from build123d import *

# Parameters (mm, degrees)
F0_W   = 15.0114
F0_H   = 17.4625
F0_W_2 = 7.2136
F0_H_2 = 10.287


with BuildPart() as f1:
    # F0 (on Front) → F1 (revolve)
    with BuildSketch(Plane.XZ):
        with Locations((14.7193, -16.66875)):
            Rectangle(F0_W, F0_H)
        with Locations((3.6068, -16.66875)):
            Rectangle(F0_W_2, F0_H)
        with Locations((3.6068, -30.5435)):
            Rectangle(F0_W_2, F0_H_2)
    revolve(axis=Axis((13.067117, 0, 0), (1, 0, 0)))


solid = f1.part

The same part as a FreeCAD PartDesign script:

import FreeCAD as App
import Part
import Sketcher
Q = App.Units.Quantity


def add_polygon(sketch, points):
    """Adds a closed chain of lines whose ends are joined by coincident constraints."""
    first, n = sketch.GeometryCount, len(points)
    for a, b in zip(points, points[1:] + points[:1]):
        sketch.addGeometry(Part.LineSegment(App.Vector(*a, 0), App.Vector(*b, 0)), False)
    for i in range(n):
        sketch.addConstraint(Sketcher.Constraint("Coincident", first + i, 2, first + (i + 1) % n, 1))

doc = App.newDocument("Part")
body = doc.addObject("PartDesign::Body", "Body")

sketch1 = body.newObject("Sketcher::SketchObject", "Sketch")
sketch1.AttachmentSupport = (doc.getObject("XZ_Plane"), [""])
sketch1.MapMode = "FlatFace"
add_polygon(sketch1, [(22, -25), (22, -8), (0, -8), (0, -36), (7, -36), (7, -25)])
sketch1.addConstraint([
    Sketcher.Constraint("Vertical", 0),
    Sketcher.Constraint("Horizontal", 1),
    Sketcher.Constraint("Vertical", 2),
    Sketcher.Constraint("Horizontal", 3),
    Sketcher.Constraint("Vertical", 4),
    Sketcher.Constraint("Horizontal", 5),
    Sketcher.Constraint("PointOnObject", 1, 2, -2),
    Sketcher.Constraint("DistanceY", 4, 2, -1, 1, Q("1 in")),
    Sketcher.Constraint("DistanceX", 1, 2, 1, 1, Q("0.875 in")),
    Sketcher.Constraint("DistanceX", 3, 1, 3, 2, Q("0.284 in")),
    Sketcher.Constraint("DistanceY", 0, 1, 0, 2, Q("0.6875 in")),
    Sketcher.Constraint("DistanceY", 4, 1, 4, 2, Q("0.405 in")),
])
revolution = body.newObject("PartDesign::Revolution", "Revolution")
revolution.Profile = sketch1
revolution.ReferenceAxis = (sketch1, ["H_Axis"])
revolution.Angle = 360

doc.recompute()
